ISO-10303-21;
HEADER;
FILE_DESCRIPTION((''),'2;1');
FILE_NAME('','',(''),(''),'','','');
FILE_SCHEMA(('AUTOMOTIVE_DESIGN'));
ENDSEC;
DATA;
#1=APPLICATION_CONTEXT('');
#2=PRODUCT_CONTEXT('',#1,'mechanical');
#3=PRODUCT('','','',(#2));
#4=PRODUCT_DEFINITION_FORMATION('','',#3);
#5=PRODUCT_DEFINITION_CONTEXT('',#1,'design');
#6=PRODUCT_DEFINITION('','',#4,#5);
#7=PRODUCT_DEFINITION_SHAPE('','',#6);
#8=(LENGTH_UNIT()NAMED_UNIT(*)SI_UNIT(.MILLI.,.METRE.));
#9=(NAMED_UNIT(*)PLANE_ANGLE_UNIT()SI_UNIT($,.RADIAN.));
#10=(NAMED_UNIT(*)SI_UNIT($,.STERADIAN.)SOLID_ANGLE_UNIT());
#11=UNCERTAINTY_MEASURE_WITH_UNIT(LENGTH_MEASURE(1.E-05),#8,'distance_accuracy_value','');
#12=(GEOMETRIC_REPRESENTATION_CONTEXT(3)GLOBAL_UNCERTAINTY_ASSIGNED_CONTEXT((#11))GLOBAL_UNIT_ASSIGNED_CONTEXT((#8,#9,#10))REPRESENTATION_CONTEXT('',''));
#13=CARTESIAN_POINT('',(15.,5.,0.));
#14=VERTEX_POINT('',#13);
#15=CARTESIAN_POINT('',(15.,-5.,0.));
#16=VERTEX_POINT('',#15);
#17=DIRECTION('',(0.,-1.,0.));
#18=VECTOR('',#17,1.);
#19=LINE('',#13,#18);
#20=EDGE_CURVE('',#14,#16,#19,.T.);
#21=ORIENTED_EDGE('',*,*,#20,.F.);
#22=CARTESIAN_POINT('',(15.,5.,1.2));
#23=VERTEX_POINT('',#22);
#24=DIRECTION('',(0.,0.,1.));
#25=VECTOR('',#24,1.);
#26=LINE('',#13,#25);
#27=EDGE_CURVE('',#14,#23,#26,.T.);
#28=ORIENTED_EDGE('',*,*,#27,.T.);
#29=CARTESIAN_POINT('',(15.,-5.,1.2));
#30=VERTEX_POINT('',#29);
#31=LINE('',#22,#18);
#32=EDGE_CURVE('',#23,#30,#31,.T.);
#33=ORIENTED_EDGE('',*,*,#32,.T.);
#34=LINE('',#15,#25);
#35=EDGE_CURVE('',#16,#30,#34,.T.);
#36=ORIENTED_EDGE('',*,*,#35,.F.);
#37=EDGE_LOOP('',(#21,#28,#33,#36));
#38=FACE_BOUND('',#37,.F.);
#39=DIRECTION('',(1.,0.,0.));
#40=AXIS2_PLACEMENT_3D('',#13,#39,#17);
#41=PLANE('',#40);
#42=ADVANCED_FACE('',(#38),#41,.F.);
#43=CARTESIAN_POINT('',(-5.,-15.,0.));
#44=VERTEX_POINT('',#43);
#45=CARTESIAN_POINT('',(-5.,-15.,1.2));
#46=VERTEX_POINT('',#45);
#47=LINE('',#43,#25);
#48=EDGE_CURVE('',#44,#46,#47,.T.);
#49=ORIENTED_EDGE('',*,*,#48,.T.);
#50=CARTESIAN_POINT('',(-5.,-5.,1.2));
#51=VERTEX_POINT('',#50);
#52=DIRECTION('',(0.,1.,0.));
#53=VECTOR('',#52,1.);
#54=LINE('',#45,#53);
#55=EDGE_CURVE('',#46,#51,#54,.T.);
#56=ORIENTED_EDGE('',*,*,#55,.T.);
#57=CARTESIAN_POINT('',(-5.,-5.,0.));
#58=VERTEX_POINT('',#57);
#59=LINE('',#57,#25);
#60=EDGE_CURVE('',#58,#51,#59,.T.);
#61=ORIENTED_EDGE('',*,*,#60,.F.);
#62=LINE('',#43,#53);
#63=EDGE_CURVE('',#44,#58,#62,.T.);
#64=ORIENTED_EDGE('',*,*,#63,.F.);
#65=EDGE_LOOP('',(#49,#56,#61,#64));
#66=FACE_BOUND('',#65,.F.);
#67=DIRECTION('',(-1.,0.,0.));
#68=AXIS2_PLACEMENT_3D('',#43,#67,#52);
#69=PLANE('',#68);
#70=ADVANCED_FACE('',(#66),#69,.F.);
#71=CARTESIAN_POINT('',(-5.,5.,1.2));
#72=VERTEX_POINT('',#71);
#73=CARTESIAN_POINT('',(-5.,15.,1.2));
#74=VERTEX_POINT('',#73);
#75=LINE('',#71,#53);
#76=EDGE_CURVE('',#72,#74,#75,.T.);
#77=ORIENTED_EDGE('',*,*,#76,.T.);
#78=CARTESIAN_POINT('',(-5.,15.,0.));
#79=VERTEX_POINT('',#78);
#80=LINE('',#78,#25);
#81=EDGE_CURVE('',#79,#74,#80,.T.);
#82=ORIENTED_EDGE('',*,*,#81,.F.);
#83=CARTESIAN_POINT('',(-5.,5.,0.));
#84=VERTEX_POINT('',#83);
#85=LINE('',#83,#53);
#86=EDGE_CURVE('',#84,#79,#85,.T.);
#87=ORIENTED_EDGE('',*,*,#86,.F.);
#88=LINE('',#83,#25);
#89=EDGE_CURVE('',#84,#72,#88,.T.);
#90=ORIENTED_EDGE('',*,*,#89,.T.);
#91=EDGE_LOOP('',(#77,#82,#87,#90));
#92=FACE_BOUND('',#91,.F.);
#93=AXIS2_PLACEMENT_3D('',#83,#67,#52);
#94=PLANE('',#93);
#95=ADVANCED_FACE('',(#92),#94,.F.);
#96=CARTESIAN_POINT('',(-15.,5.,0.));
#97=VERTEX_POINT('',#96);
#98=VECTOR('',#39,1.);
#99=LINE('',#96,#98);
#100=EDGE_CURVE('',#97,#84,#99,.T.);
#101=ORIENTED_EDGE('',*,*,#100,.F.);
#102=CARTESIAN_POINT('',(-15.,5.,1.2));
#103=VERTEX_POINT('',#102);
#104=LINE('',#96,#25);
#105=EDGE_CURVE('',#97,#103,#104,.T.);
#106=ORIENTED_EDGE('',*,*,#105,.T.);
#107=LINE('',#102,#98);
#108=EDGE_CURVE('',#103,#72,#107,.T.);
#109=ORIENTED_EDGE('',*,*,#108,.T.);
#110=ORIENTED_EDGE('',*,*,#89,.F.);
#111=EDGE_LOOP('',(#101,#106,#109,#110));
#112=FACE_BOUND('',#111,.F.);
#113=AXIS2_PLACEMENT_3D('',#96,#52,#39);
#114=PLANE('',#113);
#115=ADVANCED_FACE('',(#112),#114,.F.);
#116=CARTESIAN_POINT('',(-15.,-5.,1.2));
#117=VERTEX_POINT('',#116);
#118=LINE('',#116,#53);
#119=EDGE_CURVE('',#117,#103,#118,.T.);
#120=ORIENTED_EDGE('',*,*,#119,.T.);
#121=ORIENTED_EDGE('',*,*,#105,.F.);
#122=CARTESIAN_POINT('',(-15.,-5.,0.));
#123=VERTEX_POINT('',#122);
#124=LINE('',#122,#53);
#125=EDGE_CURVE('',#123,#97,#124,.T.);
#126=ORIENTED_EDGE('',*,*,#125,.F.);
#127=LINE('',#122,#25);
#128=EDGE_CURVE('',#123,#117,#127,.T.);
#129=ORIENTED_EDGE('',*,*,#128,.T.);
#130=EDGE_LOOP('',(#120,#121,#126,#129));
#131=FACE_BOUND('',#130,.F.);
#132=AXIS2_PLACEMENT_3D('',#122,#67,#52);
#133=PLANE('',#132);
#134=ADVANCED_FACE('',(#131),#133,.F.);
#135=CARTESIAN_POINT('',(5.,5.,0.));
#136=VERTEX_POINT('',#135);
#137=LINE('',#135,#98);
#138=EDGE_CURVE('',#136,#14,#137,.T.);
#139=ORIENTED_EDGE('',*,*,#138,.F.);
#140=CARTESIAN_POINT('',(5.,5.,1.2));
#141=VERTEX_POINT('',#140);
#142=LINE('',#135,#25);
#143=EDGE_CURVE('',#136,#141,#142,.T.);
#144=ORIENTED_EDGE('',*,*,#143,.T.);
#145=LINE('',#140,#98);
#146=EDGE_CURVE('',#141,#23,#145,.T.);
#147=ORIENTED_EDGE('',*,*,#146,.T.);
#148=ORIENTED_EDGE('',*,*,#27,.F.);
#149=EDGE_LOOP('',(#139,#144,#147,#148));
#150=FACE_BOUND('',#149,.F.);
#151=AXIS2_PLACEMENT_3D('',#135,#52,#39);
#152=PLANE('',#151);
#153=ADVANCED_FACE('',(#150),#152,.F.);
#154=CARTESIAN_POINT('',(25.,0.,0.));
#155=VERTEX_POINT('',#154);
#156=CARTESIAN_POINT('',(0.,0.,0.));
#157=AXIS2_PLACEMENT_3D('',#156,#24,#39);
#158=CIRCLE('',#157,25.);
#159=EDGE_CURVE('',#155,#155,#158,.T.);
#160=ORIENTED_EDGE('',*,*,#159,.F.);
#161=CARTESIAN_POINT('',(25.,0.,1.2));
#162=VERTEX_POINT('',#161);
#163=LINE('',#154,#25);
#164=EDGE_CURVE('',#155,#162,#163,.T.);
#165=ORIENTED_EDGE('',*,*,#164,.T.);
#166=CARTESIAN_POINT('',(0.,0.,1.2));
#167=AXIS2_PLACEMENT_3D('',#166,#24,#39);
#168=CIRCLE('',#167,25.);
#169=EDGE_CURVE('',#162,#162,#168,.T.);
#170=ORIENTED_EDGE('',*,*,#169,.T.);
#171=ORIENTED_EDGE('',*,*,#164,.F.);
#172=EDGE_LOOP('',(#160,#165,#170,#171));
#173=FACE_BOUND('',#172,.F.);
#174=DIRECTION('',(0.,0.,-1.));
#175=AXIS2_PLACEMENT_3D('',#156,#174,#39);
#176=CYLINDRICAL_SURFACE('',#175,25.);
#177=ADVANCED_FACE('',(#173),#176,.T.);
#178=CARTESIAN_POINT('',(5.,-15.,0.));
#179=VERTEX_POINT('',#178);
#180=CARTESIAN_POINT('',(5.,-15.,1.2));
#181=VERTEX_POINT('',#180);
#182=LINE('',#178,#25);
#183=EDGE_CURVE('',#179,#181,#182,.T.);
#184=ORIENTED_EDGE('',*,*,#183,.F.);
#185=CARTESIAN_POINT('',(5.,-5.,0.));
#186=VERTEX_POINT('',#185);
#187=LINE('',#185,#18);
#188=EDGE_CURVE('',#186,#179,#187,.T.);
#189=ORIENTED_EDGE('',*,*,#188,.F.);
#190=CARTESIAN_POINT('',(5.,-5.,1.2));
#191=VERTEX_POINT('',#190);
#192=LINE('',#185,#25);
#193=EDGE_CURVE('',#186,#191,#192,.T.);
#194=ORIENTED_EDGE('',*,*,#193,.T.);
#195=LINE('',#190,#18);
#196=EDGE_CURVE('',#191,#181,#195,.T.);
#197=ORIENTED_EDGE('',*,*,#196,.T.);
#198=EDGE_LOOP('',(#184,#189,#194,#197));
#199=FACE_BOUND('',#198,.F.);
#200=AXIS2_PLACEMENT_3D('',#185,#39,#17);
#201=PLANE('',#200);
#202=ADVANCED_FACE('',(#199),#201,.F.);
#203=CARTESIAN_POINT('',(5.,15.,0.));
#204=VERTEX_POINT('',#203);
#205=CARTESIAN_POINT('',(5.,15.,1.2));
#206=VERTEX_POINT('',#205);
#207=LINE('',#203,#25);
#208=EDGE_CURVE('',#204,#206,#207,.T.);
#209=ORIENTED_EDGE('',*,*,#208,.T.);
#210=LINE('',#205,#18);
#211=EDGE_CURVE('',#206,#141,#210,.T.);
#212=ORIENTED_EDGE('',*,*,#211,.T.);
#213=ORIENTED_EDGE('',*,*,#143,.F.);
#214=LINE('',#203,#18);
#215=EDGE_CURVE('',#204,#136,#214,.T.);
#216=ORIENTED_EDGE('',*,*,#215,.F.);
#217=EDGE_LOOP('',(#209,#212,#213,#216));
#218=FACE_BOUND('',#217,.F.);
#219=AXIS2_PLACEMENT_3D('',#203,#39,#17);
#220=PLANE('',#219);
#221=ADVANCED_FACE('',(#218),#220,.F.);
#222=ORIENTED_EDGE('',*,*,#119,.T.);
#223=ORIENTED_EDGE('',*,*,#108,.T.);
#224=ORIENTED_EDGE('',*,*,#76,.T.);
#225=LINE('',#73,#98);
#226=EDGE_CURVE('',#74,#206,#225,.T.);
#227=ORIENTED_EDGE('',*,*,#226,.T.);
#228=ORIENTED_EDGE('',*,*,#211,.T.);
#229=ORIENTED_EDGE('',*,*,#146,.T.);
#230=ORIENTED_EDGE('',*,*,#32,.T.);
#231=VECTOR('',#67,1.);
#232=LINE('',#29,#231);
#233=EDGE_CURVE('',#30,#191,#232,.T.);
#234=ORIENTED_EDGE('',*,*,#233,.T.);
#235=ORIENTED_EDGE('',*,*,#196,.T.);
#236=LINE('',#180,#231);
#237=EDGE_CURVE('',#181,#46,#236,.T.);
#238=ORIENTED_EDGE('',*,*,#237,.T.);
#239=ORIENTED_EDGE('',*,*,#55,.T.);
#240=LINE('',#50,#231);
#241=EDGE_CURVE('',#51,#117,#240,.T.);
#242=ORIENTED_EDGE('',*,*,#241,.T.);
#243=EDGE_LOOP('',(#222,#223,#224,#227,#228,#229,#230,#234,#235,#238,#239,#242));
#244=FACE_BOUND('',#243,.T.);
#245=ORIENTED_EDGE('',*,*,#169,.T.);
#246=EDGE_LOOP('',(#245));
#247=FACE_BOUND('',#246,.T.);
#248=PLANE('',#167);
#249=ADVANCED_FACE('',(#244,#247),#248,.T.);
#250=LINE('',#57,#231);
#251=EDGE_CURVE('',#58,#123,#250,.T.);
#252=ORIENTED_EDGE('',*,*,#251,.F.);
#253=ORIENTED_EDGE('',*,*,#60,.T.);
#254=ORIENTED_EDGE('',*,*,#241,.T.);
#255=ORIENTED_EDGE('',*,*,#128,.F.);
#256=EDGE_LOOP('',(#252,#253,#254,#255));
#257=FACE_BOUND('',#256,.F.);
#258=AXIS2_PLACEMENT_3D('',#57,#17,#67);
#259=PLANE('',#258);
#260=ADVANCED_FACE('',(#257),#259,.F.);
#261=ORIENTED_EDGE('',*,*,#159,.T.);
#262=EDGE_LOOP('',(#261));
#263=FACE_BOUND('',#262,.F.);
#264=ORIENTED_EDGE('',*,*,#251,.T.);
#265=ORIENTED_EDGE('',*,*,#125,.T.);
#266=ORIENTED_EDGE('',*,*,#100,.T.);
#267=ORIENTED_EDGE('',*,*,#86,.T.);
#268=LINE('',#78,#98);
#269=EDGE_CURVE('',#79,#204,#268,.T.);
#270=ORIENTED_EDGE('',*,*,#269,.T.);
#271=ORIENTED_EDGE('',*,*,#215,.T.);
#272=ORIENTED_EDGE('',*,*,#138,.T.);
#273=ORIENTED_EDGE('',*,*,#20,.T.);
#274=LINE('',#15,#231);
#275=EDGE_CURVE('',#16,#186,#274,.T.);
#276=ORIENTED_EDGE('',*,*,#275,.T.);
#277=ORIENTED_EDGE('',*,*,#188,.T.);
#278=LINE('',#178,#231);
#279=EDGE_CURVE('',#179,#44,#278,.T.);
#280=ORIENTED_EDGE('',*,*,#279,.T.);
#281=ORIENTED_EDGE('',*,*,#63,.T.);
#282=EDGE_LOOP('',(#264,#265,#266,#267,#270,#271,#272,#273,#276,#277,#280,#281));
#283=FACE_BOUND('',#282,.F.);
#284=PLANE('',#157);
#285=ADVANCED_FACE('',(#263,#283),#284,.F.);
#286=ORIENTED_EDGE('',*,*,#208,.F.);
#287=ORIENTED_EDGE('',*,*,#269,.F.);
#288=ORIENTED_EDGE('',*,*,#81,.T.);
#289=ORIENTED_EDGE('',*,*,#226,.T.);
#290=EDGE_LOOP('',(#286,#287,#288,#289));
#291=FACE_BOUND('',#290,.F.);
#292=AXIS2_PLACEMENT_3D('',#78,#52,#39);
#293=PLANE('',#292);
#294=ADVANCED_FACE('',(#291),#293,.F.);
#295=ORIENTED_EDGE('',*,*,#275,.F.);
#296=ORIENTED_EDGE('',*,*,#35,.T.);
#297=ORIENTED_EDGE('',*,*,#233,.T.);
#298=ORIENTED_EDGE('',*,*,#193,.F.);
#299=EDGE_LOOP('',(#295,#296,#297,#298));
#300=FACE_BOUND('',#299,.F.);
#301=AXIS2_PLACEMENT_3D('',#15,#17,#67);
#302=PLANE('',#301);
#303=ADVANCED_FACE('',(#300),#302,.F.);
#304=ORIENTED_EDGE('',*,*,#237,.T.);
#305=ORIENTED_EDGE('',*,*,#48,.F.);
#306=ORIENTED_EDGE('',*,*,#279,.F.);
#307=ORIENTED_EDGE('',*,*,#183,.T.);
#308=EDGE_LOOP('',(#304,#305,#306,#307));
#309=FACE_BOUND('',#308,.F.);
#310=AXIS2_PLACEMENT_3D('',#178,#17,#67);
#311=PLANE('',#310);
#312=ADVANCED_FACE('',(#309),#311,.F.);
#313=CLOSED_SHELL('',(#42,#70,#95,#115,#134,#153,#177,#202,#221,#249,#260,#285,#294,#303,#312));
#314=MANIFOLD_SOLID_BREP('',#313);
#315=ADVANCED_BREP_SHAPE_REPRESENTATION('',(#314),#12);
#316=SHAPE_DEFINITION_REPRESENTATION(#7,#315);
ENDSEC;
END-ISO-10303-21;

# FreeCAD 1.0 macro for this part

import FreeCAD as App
import Part
import Sketcher
from FreeCAD import Vector

doc = App.newDocument("Part")
params = doc.addObject("Spreadsheet::Sheet", "Params")
for row, (alias, value) in enumerate([
    ("sketch1_diameter", "50 mm"),
    ("sketch1_width", "10 mm"),
    ("pad1_length", "1.2 mm"),
], start=1):
    params.set(f"A{row}", alias)
    params.set(f"B{row}", "=" + value)
    params.setAlias(f"B{row}", alias)

body = doc.addObject("PartDesign::Body", "Body")

# Sketch on XY plane
sketch1 = body.newObject("Sketcher::SketchObject", "Sketch")
sketch1.AttachmentSupport = (doc.getObject("XY_Plane"), [""])
sketch1.MapMode = "FlatFace"
sketch1.addGeometry([
    Part.Circle(Vector(0, 0, 0), Vector(0, 0, 1), 25),  # 0
    Part.LineSegment(Vector(-5, 15, 0), Vector(5, 15, 0)),  # 1
    Part.LineSegment(Vector(5, 15, 0), Vector(5, 5, 0)),  # 2
    Part.LineSegment(Vector(5, 5, 0), Vector(15, 5, 0)),  # 3
    Part.LineSegment(Vector(15, 5, 0), Vector(15, -5, 0)),  # 4
    Part.LineSegment(Vector(15, -5, 0), Vector(5, -5, 0)),  # 5
    Part.LineSegment(Vector(5, -5, 0), Vector(5, -15, 0)),  # 6
    Part.LineSegment(Vector(5, -15, 0), Vector(-5, -15, 0)),  # 7
    Part.LineSegment(Vector(-5, -15, 0), Vector(-5, -5, 0)),  # 8
    Part.LineSegment(Vector(-5, -5, 0), Vector(-15, -5, 0)),  # 9
    Part.LineSegment(Vector(-15, -5, 0), Vector(-15, 5, 0)),  # 10
    Part.LineSegment(Vector(-15, 5, 0), Vector(-5, 5, 0)),  # 11
    Part.LineSegment(Vector(-5, 5, 0), Vector(-5, 15, 0)),  # 12
], False)
sketch1.addConstraint([
    Sketcher.Constraint("Coincident", 1, 2, 2, 1),
    Sketcher.Constraint("Coincident", 2, 2, 3, 1),
    Sketcher.Constraint("Coincident", 3, 2, 4, 1),
    Sketcher.Constraint("Coincident", 4, 2, 5, 1),
    Sketcher.Constraint("Coincident", 5, 2, 6, 1),
    Sketcher.Constraint("Coincident", 6, 2, 7, 1),
    Sketcher.Constraint("Coincident", 7, 2, 8, 1),
    Sketcher.Constraint("Coincident", 8, 2, 9, 1),
    Sketcher.Constraint("Coincident", 9, 2, 10, 1),
    Sketcher.Constraint("Coincident", 10, 2, 11, 1),
    Sketcher.Constraint("Coincident", 11, 2, 12, 1),
    Sketcher.Constraint("Coincident", 12, 2, 1, 1),
    Sketcher.Constraint("Horizontal", 1),
    Sketcher.Constraint("Vertical", 2),
    Sketcher.Constraint("Horizontal", 3),
    Sketcher.Constraint("Vertical", 4),
    Sketcher.Constraint("Horizontal", 5),
    Sketcher.Constraint("Vertical", 6),
    Sketcher.Constraint("Horizontal", 7),
    Sketcher.Constraint("Vertical", 8),
    Sketcher.Constraint("Horizontal", 9),
    Sketcher.Constraint("Vertical", 10),
    Sketcher.Constraint("Horizontal", 11),
    Sketcher.Constraint("Vertical", 12),
    Sketcher.Constraint("Coincident", 0, 3, -1, 1),
    Sketcher.Constraint("Symmetric", 1, 2, 7, 2, -1, 1),
    Sketcher.Constraint("Symmetric", 3, 2, 9, 2, -1, 1),
    Sketcher.Constraint("Symmetric", 5, 2, 11, 2, -1, 1),
    Sketcher.Constraint("Symmetric", 5, 2, 8, 2, -2),
    Sketcher.Constraint("Equal", 1, 3),
    Sketcher.Constraint("Equal", 11, 2),
    Sketcher.Constraint("Equal", 2, 4),
    Sketcher.Constraint("Diameter", 0, 50.0),
    Sketcher.Constraint("DistanceX", 1, 1, 1, 2, 10.0),
])
sketch1.setExpression("Constraints[32]", "Params.sketch1_diameter")
sketch1.setExpression("Constraints[33]", "Params.sketch1_width")
pad1 = body.newObject("PartDesign::Pad", "Pad")
pad1.Profile = sketch1
pad1.setExpression("Length", "Params.pad1_length")

doc.recompute()
